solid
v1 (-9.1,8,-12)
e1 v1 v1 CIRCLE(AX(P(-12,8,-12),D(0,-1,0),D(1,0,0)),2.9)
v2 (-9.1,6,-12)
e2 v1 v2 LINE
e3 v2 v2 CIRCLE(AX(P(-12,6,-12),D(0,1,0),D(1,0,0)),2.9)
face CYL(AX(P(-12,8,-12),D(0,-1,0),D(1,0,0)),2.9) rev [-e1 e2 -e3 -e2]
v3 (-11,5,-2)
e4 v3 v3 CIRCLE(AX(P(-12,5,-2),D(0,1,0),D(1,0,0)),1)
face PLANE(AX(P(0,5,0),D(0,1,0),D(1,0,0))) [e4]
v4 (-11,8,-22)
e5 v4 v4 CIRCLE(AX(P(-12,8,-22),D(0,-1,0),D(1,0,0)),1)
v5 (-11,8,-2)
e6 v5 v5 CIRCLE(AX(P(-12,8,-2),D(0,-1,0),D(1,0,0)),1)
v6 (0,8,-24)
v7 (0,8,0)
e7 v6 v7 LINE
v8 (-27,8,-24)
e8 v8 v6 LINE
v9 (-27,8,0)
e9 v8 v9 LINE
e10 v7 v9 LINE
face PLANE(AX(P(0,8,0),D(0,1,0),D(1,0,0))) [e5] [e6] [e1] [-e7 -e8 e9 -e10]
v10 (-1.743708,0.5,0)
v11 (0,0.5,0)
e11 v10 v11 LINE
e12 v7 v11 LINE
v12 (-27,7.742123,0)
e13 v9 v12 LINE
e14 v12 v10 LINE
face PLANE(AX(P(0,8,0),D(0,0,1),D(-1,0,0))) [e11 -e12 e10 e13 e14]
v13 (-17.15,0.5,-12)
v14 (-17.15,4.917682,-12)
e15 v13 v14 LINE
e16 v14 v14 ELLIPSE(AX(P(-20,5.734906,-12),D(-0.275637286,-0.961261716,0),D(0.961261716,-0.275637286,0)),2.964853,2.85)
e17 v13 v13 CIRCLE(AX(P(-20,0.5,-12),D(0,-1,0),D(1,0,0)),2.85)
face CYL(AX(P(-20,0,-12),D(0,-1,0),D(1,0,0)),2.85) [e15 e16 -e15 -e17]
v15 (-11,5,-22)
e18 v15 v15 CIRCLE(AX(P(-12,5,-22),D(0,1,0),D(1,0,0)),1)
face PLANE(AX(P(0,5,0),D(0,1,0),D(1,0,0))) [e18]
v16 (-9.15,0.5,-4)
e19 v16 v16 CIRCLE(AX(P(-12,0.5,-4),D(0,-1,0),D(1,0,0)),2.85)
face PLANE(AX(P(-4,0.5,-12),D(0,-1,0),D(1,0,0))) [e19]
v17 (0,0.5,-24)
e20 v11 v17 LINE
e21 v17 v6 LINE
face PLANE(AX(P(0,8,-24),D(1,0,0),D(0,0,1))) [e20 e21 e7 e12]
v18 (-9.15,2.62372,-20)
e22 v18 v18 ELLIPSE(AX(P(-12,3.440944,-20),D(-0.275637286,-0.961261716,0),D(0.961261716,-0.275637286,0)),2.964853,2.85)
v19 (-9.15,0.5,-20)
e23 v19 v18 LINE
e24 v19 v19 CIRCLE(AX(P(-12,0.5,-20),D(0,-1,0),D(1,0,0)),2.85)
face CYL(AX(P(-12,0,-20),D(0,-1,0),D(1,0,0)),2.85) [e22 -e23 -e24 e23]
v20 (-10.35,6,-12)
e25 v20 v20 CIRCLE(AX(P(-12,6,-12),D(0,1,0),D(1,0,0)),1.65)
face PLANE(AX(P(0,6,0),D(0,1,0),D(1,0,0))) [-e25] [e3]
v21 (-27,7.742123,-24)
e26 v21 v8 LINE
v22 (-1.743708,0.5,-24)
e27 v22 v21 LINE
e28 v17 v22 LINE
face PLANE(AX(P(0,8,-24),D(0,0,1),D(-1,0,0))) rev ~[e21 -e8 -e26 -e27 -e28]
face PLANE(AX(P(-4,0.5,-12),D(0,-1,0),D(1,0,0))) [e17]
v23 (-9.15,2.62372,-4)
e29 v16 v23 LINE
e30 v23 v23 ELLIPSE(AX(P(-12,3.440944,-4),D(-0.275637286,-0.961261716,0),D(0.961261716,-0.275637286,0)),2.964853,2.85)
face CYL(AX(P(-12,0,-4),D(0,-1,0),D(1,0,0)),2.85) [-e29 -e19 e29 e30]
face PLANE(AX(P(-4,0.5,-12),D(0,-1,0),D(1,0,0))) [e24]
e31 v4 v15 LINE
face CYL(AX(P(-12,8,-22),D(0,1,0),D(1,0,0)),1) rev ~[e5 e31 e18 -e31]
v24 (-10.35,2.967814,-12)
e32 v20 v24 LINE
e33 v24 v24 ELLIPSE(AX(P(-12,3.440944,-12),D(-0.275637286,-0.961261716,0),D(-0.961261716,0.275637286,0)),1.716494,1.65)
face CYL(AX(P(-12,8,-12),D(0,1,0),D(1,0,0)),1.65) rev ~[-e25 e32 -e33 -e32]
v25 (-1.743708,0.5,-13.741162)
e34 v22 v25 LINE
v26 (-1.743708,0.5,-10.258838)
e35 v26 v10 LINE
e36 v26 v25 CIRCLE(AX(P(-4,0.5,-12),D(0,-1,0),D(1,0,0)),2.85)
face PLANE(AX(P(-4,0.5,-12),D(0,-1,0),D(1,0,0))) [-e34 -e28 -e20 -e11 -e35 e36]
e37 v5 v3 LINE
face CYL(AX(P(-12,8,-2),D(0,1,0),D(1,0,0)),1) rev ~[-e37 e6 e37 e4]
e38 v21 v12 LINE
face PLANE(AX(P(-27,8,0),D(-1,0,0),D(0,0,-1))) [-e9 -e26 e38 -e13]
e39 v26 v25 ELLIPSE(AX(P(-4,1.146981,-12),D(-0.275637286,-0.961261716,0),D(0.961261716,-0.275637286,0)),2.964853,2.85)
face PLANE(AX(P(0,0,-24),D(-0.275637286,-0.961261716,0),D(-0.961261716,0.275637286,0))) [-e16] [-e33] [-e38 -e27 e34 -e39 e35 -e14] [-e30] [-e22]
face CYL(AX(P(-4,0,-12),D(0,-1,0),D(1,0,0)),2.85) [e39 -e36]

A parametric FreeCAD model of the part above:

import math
import FreeCAD as App
import Part
import Sketcher
Q = App.Units.Quantity

doc = App.newDocument("Part")
body = doc.addObject("PartDesign::Body", "Body")

sketch1 = doc.addObject("Sketcher::SketchObject", "Sketch")
body.addObject(sketch1)
sketch1.AttachmentSupport = (doc.XZ_Plane, [""])
sketch1.MapMode = "FlatFace"
sketch1.addGeometry([
    Part.LineSegment(App.Vector(-27, 0, 0), App.Vector(0, 0, 0)),
    Part.LineSegment(App.Vector(0, 0, 0), App.Vector(0, -24, 0)),
    Part.LineSegment(App.Vector(0, -24, 0), App.Vector(-27, -24, 0)),
    Part.LineSegment(App.Vector(-27, -24, 0), App.Vector(-27, 0, 0)),
], False)
sketch1.addConstraint([
    Sketcher.Constraint("Coincident", 0, 2, 1, 1),
    Sketcher.Constraint("Coincident", 1, 2, 2, 1),
    Sketcher.Constraint("Coincident", 2, 2, 3, 1),
    Sketcher.Constraint("Coincident", 3, 2, 0, 1),
    Sketcher.Constraint("Horizontal", 0),
    Sketcher.Constraint("Vertical", 1),
    Sketcher.Constraint("Horizontal", 2),
    Sketcher.Constraint("Vertical", 3),
    Sketcher.Constraint("Coincident", 0, 2, -1, 1),
    Sketcher.Constraint("DistanceX", 0, 1, 0, 2, Q("27 mm")),
    Sketcher.Constraint("DistanceY", 1, 2, 1, 1, Q("24 mm")),
])
pad1 = doc.addObject("PartDesign::Pad", "Pad")
body.addObject(pad1)
pad1.Profile = sketch1
pad1.Length = 8
pad1.Reversed = True

sketch2 = doc.addObject("Sketcher::SketchObject", "Sketch001")
body.addObject(sketch2)
sketch2.AttachmentSupport = (doc.XY_Plane, [""])
sketch2.MapMode = "FlatFace"
sketch2.AttachmentOffset = App.Placement(App.Vector(0, 0, -24), App.Rotation())
sketch2.addGeometry([
    Part.LineSegment(App.Vector(-27, 7.742123, 0), App.Vector(0, 0, 0)),
    Part.LineSegment(App.Vector(0, 0, 0), App.Vector(-27, 0, 0)),
    Part.LineSegment(App.Vector(-27, 0, 0), App.Vector(-27, 7.742123, 0)),
], False)
sketch2.addConstraint([
    Sketcher.Constraint("Coincident", 0, 2, 1, 1),
    Sketcher.Constraint("Coincident", 1, 2, 2, 1),
    Sketcher.Constraint("Coincident", 2, 2, 0, 1),
    Sketcher.Constraint("Horizontal", 1),
    Sketcher.Constraint("Vertical", 2),
    Sketcher.Constraint("Coincident", 0, 2, -1, 1),
    Sketcher.Constraint("Angle", 0, Q("-16 deg")),
    Sketcher.Constraint("DistanceX", 1, 2, 1, 1, Q("27 mm")),
])
pocket1 = doc.addObject("PartDesign::Pocket", "Pocket")
body.addObject(pocket1)
pocket1.Profile = sketch2
pocket1.Length = 30
pocket1.Reversed = True

sketch3 = doc.addObject("Sketcher::SketchObject", "Sketch002")
body.addObject(sketch3)
sketch3.AttachmentSupport = (doc.XZ_Plane, [""])
sketch3.MapMode = "FlatFace"
sketch3.addGeometry([
    Part.Circle(App.Vector(-4, -12, 0), App.Vector(0, 0, 1), 2.85),
    Part.Circle(App.Vector(-12, -20, 0), App.Vector(0, 0, 1), 2.85),
    Part.Circle(App.Vector(-20, -12, 0), App.Vector(0, 0, 1), 2.85),
    Part.Circle(App.Vector(-12, -4, 0), App.Vector(0, 0, 1), 2.85),
], False)
sketch3.addConstraint([
    Sketcher.Constraint("Equal", 0, 1),
    Sketcher.Constraint("Equal", 1, 2),
    Sketcher.Constraint("Equal", 2, 3),
    Sketcher.Constraint("Horizontal", 0, 3, 2, 3),
    Sketcher.Constraint("Vertical", 1, 3, 3, 3),
    Sketcher.Constraint("Diameter", 0, Q("5.7 mm")),
    Sketcher.Constraint("DistanceX", 0, 3, -1, 1, Q("4 mm")),
    Sketcher.Constraint("DistanceY", 3, 3, -1, 1, Q("4 mm")),
    Sketcher.Constraint("DistanceX", 1, 3, 0, 3, Q("8 mm")),
    Sketcher.Constraint("DistanceY", 1, 3, 0, 3, Q("8 mm")),
    Sketcher.Constraint("DistanceX", 2, 3, 1, 3, Q("8 mm")),
    Sketcher.Constraint("DistanceY", 0, 3, 3, 3, Q("8 mm")),
])
pad2 = doc.addObject("PartDesign::Pad", "Pad001")
body.addObject(pad2)
pad2.Profile = sketch3
pad2.Length = 8
pad2.Reversed = True

sketch4 = doc.addObject("Sketcher::SketchObject", "Sketch003")
body.addObject(sketch4)
sketch4.AttachmentSupport = (doc.XZ_Plane, [""])
sketch4.MapMode = "FlatFace"
sketch4.addGeometry([
    Part.LineSegment(App.Vector(0, -24, 0), App.Vector(0, 0, 0)),
    Part.LineSegment(App.Vector(0, 0, 0), App.Vector(-27.2805, 0, 0)),
    Part.LineSegment(App.Vector(-27.2805, 0, 0), App.Vector(-27.2805, -24, 0)),
    Part.LineSegment(App.Vector(-27.2805, -24, 0), App.Vector(0, -24, 0)),
], False)
sketch4.addConstraint([
    Sketcher.Constraint("Coincident", 0, 2, 1, 1),
    Sketcher.Constraint("Coincident", 1, 2, 2, 1),
    Sketcher.Constraint("Coincident", 2, 2, 3, 1),
    Sketcher.Constraint("Coincident", 3, 2, 0, 1),
    Sketcher.Constraint("Vertical", 0),
    Sketcher.Constraint("Horizontal", 1),
    Sketcher.Constraint("Vertical", 2),
    Sketcher.Constraint("Horizontal", 3),
    Sketcher.Constraint("Coincident", 0, 2, -1, 1),
    Sketcher.Constraint("DistanceY", 0, 1, 0, 2, Q("24 mm")),
    Sketcher.Constraint("DistanceX", 1, 2, 1, 1, Q("27.2805 mm")),
])
pocket2 = doc.addObject("PartDesign::Pocket", "Pocket001")
body.addObject(pocket2)
pocket2.Profile = sketch4
pocket2.Length = 0.5

sketch5 = doc.addObject("Sketcher::SketchObject", "Sketch004")
body.addObject(sketch5)
sketch5.AttachmentSupport = (doc.XZ_Plane, [""])
sketch5.MapMode = "FlatFace"
sketch5.AttachmentOffset = App.Placement(App.Vector(0, 0, -8), App.Rotation())
sketch5.addGeometry(Part.Circle(App.Vector(-12, -12, 0), App.Vector(0, 0, 1), 1.65), False)
sketch5.addConstraint([
    Sketcher.Constraint("Diameter", 0, Q("3.3 mm")),
    Sketcher.Constraint("DistanceX", 0, 3, -1, 1, Q("12 mm")),
    Sketcher.Constraint("DistanceY", 0, 3, -1, 1, Q("12 mm")),
])
pocket3 = doc.addObject("PartDesign::Pocket", "Pocket002")
body.addObject(pocket3)
pocket3.Profile = sketch5
pocket3.Length = 30
pocket3.Reversed = True

sketch6 = doc.addObject("Sketcher::SketchObject", "Sketch005")
body.addObject(sketch6)
sketch6.AttachmentSupport = (doc.XZ_Plane, [""])
sketch6.MapMode = "FlatFace"
sketch6.AttachmentOffset = App.Placement(App.Vector(0, 0, -8), App.Rotation())
sketch6.addGeometry([
    Part.Circle(App.Vector(-12, -12, 0), App.Vector(0, 0, 1), 2.9),
    Part.Circle(App.Vector(-12, -12, 0), App.Vector(0, 0, 1), 1.65),
], False)
sketch6.addConstraint([
    Sketcher.Constraint("Coincident", 1, 3, 0, 3),
    Sketcher.Constraint("Diameter", 0, Q("5.8 mm")),
    Sketcher.Constraint("Diameter", 1, Q("3.3 mm")),
    Sketcher.Constraint("DistanceX", 0, 3, -1, 1, Q("12 mm")),
    Sketcher.Constraint("DistanceY", 0, 3, -1, 1, Q("12 mm")),
])
pocket4 = doc.addObject("PartDesign::Pocket", "Pocket003")
body.addObject(pocket4)
pocket4.Profile = sketch6
pocket4.Length = 2
pocket4.Reversed = True

sketch7 = doc.addObject("Sketcher::SketchObject", "Sketch006")
body.addObject(sketch7)
sketch7.AttachmentSupport = (doc.XZ_Plane, [""])
sketch7.MapMode = "FlatFace"
sketch7.AttachmentOffset = App.Placement(App.Vector(0, 0, -8), App.Rotation())
sketch7.addGeometry([
    Part.LineSegment(App.Vector(0, 0, 0), App.Vector(0, -24, 0)),
    Part.LineSegment(App.Vector(0, -24, 0), App.Vector(-27, -24, 0)),
    Part.LineSegment(App.Vector(-27, -24, 0), App.Vector(-27, 0, 0)),
    Part.LineSegment(App.Vector(-27, 0, 0), App.Vector(0, 0, 0)),
    Part.Circle(App.Vector(-12, -12, 0), App.Vector(0, 0, 1), 2.9),
], False)
sketch7.addConstraint([
    Sketcher.Constraint("Coincident", 0, 2, 1, 1),
    Sketcher.Constraint("Coincident", 1, 2, 2, 1),
    Sketcher.Constraint("Coincident", 2, 2, 3, 1),
    Sketcher.Constraint("Coincident", 3, 2, 0, 1),
    Sketcher.Constraint("Vertical", 0),
    Sketcher.Constraint("Horizontal", 1),
    Sketcher.Constraint("Vertical", 2),
    Sketcher.Constraint("Horizontal", 3),
    Sketcher.Constraint("Coincident", 3, 2, -1, 1),
    Sketcher.Constraint("Diameter", 4, Q("5.8 mm")),
    Sketcher.Constraint("DistanceX", 1, 2, 1, 1, Q("27 mm")),
    Sketcher.Constraint("DistanceY", 0, 2, 0, 1, Q("24 mm")),
    Sketcher.Constraint("DistanceX", 4, 3, -1, 1, Q("12 mm")),
    Sketcher.Constraint("DistanceY", 4, 3, -1, 1, Q("12 mm")),
])
pad3 = doc.addObject("PartDesign::Pad", "Pad002")
body.addObject(pad3)
pad3.Profile = sketch7
pad3.Length = 4
pad3.Reversed = True

sketch8 = doc.addObject("Sketcher::SketchObject", "Sketch007")
body.addObject(sketch8)
sketch8.AttachmentSupport = (doc.XZ_Plane, [""])
sketch8.MapMode = "FlatFace"
sketch8.AttachmentOffset = App.Placement(App.Vector(0, 0, -12), App.Rotation())
sketch8.addGeometry([
    Part.LineSegment(App.Vector(-12, 1.5388, 0), App.Vector(5.1891, 1.5388, 0)),
    Part.LineSegment(App.Vector(5.1891, 1.5388, 0), App.Vector(5.1891, -14, 0)),
    Part.LineSegment(App.Vector(5.1891, -14, 0), App.Vector(-9.9, -14, 0)),
    Part.ArcOfCircle(Part.Circle(App.Vector(-12, -12, 0), App.Vector(0, 0, 1), 2.9), math.radians(-43.602819), math.radians(133.602819)),
    Part.LineSegment(App.Vector(-14, -9.9, 0), App.Vector(-14, 0, 0)),
    Part.LineSegment(App.Vector(-14, 0, 0), App.Vector(-12, 0, 0)),
    Part.LineSegment(App.Vector(-12, 0, 0), App.Vector(-12, 1.5388, 0)),
], False)
sketch8.addConstraint([
    Sketcher.Constraint("Coincident", 0, 2, 1, 1),
    Sketcher.Constraint("Coincident", 1, 2, 2, 1),
    Sketcher.Constraint("Coincident", 2, 2, 3, 1),
    Sketcher.Constraint("Coincident", 3, 2, 4, 1),
    Sketcher.Constraint("Coincident", 4, 2, 5, 1),
    Sketcher.Constraint("Coincident", 5, 2, 6, 1),
    Sketcher.Constraint("Coincident", 6, 2, 0, 1),
    Sketcher.Constraint("Horizontal", 0),
    Sketcher.Constraint("Vertical", 1),
    Sketcher.Constraint("Horizontal", 2),
    Sketcher.Constraint("Vertical", 4),
    Sketcher.Constraint("Horizontal", 5),
    Sketcher.Constraint("Vertical", 6),
    Sketcher.Constraint("PointOnObject", 4, 2, -1),
    Sketcher.Constraint("Vertical", 3, 3, 5, 2),
    Sketcher.Constraint("DistanceX", 5, 1, 5, 2, Q("2 mm")),
    Sketcher.Constraint("DistanceY", 1, 2, 3, 3, Q("2 mm")),
    Sketcher.Constraint("Radius", 3, Q("2.9 mm")),
    Sketcher.Constraint("DistanceY", 4, 1, 4, 2, Q("9.9 mm")),
    Sketcher.Constraint("DistanceX", 3, 3, -1, 1, Q("12 mm")),
    Sketcher.Constraint("DistanceX", 0, 1, 0, 2, Q("17.189 mm")),
    Sketcher.Constraint("DistanceY", 1, 2, 1, 1, Q("15.5388 mm")),
])
pocket5 = doc.addObject("PartDesign::Pocket", "Pocket004")
body.addObject(pocket5)
pocket5.Profile = sketch8
pocket5.Length = 4
pocket5.Reversed = True

sketch9 = doc.addObject("Sketcher::SketchObject", "Sketch008")
body.addObject(sketch9)
sketch9.AttachmentSupport = (doc.XZ_Plane, [""])
sketch9.MapMode = "FlatFace"
sketch9.AttachmentOffset = App.Placement(App.Vector(0, 0, -12), App.Rotation())
sketch9.addGeometry([
    Part.LineSegment(App.Vector(0, 0, 0), App.Vector(0, -24, 0)),
    Part.LineSegment(App.Vector(0, -24, 0), App.Vector(-27, -24, 0)),
    Part.LineSegment(App.Vector(-27, -24, 0), App.Vector(-27, 0, 0)),
    Part.LineSegment(App.Vector(-27, 0, 0), App.Vector(0, 0, 0)),
], False)
sketch9.addConstraint([
    Sketcher.Constraint("Coincident", 0, 2, 1, 1),
    Sketcher.Constraint("Coincident", 1, 2, 2, 1),
    Sketcher.Constraint("Coincident", 2, 2, 3, 1),
    Sketcher.Constraint("Coincident", 3, 2, 0, 1),
    Sketcher.Constraint("Vertical", 0),
    Sketcher.Constraint("Horizontal", 1),
    Sketcher.Constraint("Vertical", 2),
    Sketcher.Constraint("Horizontal", 3),
    Sketcher.Constraint("Coincident", 3, 2, -1, 1),
    Sketcher.Constraint("DistanceX", 1, 2, 1, 1, Q("27 mm")),
    Sketcher.Constraint("DistanceY", 0, 2, 0, 1, Q("24 mm")),
])
pocket6 = doc.addObject("PartDesign::Pocket", "Pocket005")
body.addObject(pocket6)
pocket6.Profile = sketch9
pocket6.Length = 4
pocket6.Reversed = True

sketch10 = doc.addObject("Sketcher::SketchObject", "Sketch009")
body.addObject(sketch10)
sketch10.AttachmentSupport = (doc.XZ_Plane, [""])
sketch10.MapMode = "FlatFace"
sketch10.AttachmentOffset = App.Placement(App.Vector(0, 0, -8), App.Rotation())
sketch10.addGeometry([
    Part.Circle(App.Vector(-12, -22, 0), App.Vector(0, 0, 1), 1),
    Part.Circle(App.Vector(-12, -2, 0), App.Vector(0, 0, 1), 1),
], False)
sketch10.addConstraint([
    Sketcher.Constraint("Equal", 0, 1),
    Sketcher.Constraint("Vertical", 0, 3, 1, 3),
    Sketcher.Constraint("Diameter", 0, Q("2 mm")),
    Sketcher.Constraint("DistanceY", 1, 3, -1, 1, Q("2 mm")),
    Sketcher.Constraint("DistanceX", 0, 3, -1, 1, Q("12 mm")),
    Sketcher.Constraint("DistanceY", 0, 3, -1, 1, Q("22 mm")),
])
pocket7 = doc.addObject("PartDesign::Pocket", "Pocket006")
body.addObject(pocket7)
pocket7.Profile = sketch10
pocket7.Length = 3
pocket7.Reversed = True

doc.recompute()
